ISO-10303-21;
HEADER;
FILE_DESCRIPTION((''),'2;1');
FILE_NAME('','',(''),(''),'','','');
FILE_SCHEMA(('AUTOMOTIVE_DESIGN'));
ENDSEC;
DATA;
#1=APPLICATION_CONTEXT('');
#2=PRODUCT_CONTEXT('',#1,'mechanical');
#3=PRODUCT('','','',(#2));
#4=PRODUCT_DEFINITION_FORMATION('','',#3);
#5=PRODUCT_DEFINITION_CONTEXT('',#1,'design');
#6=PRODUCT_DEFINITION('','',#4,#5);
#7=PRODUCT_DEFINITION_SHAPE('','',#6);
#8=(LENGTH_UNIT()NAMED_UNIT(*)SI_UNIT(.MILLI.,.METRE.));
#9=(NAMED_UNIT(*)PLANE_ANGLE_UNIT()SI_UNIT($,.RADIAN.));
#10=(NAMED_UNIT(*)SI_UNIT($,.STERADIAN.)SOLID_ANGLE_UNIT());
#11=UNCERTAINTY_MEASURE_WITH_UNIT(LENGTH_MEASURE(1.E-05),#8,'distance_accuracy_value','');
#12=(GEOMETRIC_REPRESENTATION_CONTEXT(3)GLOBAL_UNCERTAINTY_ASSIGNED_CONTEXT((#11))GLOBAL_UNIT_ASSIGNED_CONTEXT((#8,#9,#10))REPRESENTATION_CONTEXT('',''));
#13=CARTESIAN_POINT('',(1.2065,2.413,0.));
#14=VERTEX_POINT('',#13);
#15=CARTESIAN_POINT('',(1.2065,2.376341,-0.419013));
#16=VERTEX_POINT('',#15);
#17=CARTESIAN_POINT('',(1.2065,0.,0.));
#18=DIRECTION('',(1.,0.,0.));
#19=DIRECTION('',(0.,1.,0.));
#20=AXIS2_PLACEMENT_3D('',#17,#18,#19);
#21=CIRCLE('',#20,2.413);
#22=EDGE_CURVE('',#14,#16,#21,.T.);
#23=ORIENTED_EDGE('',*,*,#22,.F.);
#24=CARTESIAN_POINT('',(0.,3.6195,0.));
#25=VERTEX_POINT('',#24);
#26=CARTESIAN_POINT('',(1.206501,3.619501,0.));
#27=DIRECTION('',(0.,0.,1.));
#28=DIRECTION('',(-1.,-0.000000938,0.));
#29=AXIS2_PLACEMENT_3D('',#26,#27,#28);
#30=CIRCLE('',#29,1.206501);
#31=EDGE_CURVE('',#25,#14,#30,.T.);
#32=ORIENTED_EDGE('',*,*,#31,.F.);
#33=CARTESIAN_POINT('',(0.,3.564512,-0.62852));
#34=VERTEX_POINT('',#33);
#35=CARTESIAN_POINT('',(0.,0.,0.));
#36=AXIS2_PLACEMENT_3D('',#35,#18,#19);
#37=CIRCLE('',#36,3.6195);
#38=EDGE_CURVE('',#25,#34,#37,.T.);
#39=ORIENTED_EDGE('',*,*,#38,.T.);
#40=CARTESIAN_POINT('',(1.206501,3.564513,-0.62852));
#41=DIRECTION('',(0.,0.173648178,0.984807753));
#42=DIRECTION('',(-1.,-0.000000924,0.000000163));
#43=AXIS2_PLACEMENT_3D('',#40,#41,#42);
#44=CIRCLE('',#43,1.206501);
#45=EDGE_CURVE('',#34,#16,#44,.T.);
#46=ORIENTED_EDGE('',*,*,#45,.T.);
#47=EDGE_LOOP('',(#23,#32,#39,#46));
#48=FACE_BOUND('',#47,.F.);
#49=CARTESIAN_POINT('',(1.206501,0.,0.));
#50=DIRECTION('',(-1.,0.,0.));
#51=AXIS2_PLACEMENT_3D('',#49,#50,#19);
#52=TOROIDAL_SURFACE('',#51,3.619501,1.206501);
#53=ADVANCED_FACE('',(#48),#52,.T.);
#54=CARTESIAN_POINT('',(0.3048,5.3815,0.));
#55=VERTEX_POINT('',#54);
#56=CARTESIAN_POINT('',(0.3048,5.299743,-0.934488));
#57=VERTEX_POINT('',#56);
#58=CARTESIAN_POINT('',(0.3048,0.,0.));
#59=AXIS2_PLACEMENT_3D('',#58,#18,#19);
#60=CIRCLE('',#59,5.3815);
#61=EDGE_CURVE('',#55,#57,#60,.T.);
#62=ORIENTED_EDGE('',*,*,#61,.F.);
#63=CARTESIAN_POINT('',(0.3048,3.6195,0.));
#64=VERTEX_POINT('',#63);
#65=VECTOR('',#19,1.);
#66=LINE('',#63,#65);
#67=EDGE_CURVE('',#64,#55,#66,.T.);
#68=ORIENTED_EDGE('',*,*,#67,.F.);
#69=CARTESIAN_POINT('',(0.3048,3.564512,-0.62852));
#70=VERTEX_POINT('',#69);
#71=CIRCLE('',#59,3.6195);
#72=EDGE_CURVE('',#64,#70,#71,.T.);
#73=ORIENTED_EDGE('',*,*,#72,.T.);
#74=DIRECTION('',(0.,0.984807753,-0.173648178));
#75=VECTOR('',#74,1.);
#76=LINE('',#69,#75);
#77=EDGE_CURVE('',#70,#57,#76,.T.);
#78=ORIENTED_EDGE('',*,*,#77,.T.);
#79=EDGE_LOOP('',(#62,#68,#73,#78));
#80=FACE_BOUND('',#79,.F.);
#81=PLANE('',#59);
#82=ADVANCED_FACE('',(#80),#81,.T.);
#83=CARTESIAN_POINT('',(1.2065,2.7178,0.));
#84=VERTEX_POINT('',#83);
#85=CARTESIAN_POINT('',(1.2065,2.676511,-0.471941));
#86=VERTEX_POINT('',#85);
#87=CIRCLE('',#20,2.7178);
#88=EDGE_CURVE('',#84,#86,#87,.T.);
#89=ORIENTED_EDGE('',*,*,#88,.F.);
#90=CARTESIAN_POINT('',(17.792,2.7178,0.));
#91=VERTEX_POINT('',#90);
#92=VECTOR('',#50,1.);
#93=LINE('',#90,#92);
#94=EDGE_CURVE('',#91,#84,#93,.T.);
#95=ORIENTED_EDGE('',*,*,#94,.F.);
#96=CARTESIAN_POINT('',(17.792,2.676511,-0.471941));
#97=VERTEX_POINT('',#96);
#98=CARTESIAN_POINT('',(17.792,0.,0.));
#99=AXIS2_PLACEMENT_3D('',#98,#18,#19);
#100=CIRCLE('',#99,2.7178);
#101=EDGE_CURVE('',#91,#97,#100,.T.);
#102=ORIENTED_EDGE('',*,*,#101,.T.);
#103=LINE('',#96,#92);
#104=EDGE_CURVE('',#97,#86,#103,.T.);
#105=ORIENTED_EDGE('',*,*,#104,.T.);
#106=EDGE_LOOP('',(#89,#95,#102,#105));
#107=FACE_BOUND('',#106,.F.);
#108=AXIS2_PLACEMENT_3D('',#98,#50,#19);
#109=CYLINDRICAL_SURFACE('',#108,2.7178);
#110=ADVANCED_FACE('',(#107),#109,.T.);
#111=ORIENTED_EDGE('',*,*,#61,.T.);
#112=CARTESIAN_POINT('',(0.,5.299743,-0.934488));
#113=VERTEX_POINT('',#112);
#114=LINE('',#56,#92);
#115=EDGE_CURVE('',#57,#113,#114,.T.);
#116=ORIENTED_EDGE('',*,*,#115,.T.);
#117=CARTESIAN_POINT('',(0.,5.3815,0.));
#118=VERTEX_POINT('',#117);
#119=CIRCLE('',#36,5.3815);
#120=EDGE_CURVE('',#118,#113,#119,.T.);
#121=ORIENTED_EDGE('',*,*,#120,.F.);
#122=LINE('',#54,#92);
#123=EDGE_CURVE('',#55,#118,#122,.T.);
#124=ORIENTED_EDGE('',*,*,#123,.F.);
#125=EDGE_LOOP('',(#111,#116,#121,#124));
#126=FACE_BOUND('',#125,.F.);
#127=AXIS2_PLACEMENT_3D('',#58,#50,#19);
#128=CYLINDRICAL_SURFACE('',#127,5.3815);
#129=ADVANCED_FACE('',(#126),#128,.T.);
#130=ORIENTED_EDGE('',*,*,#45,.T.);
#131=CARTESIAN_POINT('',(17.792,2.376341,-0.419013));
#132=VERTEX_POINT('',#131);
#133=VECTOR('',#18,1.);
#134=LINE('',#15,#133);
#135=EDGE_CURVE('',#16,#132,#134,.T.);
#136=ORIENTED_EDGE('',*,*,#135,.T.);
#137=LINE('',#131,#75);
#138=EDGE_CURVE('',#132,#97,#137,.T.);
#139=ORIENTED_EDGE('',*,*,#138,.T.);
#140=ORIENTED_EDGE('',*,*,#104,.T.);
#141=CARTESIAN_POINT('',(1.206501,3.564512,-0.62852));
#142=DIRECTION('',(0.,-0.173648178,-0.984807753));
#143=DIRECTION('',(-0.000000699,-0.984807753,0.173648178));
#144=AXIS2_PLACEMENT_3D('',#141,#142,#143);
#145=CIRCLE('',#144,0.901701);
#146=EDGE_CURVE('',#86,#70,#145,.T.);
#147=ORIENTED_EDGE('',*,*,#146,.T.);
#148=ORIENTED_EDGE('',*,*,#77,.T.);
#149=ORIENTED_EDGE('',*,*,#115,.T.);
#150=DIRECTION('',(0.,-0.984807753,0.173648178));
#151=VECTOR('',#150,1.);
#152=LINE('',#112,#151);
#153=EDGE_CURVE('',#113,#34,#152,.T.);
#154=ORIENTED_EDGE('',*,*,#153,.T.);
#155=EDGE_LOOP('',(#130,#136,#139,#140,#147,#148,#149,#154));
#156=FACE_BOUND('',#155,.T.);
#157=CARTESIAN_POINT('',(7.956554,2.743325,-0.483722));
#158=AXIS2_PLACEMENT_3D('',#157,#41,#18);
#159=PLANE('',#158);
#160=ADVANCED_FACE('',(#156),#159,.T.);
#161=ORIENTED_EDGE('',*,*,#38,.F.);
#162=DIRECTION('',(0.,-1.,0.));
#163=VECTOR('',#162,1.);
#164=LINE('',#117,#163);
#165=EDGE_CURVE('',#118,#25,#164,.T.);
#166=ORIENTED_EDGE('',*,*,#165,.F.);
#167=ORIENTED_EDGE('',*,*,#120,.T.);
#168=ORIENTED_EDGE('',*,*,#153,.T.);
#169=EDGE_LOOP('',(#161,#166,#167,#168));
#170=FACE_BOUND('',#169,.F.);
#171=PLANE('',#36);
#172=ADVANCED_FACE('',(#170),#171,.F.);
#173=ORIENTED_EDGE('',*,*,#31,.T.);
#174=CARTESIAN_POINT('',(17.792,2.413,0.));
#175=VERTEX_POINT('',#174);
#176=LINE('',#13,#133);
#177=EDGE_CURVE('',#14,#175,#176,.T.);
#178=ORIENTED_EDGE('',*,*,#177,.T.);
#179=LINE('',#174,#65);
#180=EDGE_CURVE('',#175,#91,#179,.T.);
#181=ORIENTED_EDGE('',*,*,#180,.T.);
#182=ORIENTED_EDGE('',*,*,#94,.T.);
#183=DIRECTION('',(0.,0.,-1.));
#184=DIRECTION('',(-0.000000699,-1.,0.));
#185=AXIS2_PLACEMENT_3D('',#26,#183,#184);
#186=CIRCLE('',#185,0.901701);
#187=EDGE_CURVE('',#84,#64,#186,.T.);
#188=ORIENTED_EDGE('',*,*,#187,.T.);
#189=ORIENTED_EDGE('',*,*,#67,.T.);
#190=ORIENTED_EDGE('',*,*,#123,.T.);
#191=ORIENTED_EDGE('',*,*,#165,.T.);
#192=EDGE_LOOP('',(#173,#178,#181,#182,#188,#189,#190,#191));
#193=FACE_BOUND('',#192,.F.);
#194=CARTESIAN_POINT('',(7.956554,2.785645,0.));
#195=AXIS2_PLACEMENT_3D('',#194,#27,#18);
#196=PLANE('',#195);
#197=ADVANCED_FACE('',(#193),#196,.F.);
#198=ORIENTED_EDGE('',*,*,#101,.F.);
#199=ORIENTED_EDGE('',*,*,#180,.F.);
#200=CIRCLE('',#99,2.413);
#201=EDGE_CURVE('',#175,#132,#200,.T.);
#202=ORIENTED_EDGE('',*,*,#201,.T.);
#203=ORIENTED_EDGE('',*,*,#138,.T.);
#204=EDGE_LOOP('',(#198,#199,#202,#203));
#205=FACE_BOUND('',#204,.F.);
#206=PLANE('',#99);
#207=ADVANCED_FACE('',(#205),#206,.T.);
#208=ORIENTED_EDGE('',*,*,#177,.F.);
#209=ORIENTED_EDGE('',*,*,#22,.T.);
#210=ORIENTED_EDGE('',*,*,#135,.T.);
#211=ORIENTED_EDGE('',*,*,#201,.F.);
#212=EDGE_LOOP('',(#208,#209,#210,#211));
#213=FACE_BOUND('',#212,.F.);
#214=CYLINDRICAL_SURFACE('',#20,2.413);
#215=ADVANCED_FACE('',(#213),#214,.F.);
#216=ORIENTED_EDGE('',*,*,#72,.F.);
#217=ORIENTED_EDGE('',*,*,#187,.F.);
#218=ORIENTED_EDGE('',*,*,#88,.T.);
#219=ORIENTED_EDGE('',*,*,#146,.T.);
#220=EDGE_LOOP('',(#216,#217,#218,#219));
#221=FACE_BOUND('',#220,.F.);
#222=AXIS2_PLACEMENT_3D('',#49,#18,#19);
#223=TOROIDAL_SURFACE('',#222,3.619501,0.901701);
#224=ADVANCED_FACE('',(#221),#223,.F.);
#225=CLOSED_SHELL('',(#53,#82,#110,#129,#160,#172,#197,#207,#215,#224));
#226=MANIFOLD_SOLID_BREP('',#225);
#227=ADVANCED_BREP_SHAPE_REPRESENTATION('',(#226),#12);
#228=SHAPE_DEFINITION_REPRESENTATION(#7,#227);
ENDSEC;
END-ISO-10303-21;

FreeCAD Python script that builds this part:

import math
import FreeCAD as App
import Part
import Sketcher

V = App.Vector
Q = App.Units.Quantity

doc = App.newDocument("Part")
body = doc.addObject("PartDesign::Body", "Body")

sketch1 = body.newObject("Sketcher::SketchObject", "Sketch")
sketch1.AttachmentSupport = (doc.getObject("XY_Plane"), [""])
sketch1.MapMode = "FlatFace"
sketch1.addGeometry(Part.LineSegment(V(1.2065, 2.413, 0), V(17.792, 2.413, 0)), False)
sketch1.addGeometry(Part.LineSegment(V(17.792, 2.413, 0), V(17.792, 2.7178, 0)), False)
sketch1.addGeometry(Part.LineSegment(V(17.792, 2.7178, 0), V(1.2065, 2.7178, 0)), False)
sketch1.addGeometry(Part.ArcOfCircle(Part.Circle(V(1.206501, 3.619501, 0), V(0, 0, 1), 0.901701), math.radians(-179.99996), math.radians(-90.00004)), False)
sketch1.addGeometry(Part.LineSegment(V(0.3048, 3.6195, 0), V(0.3048, 5.3815, 0)), False)
sketch1.addGeometry(Part.LineSegment(V(0.3048, 5.3815, 0), V(0, 5.3815, 0)), False)
sketch1.addGeometry(Part.LineSegment(V(0, 5.3815, 0), V(0, 3.6195, 0)), False)
sketch1.addGeometry(Part.ArcOfCircle(Part.Circle(V(1.206501, 3.619501, 0), V(0, 0, 1), 1.206501), math.radians(-179.999946), math.radians(-90.000054)), False)
sketch1.addConstraint(Sketcher.Constraint("Coincident", 0, 2, 1, 1))
sketch1.addConstraint(Sketcher.Constraint("Coincident", 1, 2, 2, 1))
sketch1.addConstraint(Sketcher.Constraint("Tangent", 2, 2, 3, 2))
sketch1.addConstraint(Sketcher.Constraint("Tangent", 3, 1, 4, 1))
sketch1.addConstraint(Sketcher.Constraint("Coincident", 4, 2, 5, 1))
sketch1.addConstraint(Sketcher.Constraint("Coincident", 5, 2, 6, 1))
sketch1.addConstraint(Sketcher.Constraint("Tangent", 6, 2, 7, 1))
sketch1.addConstraint(Sketcher.Constraint("Tangent", 7, 2, 0, 1))
sketch1.addConstraint(Sketcher.Constraint("Horizontal", 0))
sketch1.addConstraint(Sketcher.Constraint("Vertical", 1))
sketch1.addConstraint(Sketcher.Constraint("Horizontal", 2))
sketch1.addConstraint(Sketcher.Constraint("Vertical", 4))
sketch1.addConstraint(Sketcher.Constraint("Horizontal", 5))
sketch1.addConstraint(Sketcher.Constraint("Vertical", 6))
sketch1.addConstraint(Sketcher.Constraint("Coincident", 7, 3, 3, 3))
sketch1.addConstraint(Sketcher.Constraint("PointOnObject", 5, 2, -2))
sketch1.addConstraint(Sketcher.Constraint("Radius", 3, Q("0.0355 in")))
sketch1.addConstraint(Sketcher.Constraint("Radius", 7, Q("0.0475 in")))
sketch1.addConstraint(Sketcher.Constraint("DistanceY", -1, 1, 0, 2, Q("0.095 in")))
sketch1.addConstraint(Sketcher.Constraint("DistanceX", 0, 1, 0, 2, 16.5855))
sketch1.addConstraint(Sketcher.Constraint("DistanceY", 4, 1, 4, 2, 1.762))
revolution = body.newObject("PartDesign::Revolution", "Revolution")
revolution.Profile = sketch1
revolution.ReferenceAxis = (sketch1, ["H_Axis"])
revolution.Angle = 350

doc.recompute()
